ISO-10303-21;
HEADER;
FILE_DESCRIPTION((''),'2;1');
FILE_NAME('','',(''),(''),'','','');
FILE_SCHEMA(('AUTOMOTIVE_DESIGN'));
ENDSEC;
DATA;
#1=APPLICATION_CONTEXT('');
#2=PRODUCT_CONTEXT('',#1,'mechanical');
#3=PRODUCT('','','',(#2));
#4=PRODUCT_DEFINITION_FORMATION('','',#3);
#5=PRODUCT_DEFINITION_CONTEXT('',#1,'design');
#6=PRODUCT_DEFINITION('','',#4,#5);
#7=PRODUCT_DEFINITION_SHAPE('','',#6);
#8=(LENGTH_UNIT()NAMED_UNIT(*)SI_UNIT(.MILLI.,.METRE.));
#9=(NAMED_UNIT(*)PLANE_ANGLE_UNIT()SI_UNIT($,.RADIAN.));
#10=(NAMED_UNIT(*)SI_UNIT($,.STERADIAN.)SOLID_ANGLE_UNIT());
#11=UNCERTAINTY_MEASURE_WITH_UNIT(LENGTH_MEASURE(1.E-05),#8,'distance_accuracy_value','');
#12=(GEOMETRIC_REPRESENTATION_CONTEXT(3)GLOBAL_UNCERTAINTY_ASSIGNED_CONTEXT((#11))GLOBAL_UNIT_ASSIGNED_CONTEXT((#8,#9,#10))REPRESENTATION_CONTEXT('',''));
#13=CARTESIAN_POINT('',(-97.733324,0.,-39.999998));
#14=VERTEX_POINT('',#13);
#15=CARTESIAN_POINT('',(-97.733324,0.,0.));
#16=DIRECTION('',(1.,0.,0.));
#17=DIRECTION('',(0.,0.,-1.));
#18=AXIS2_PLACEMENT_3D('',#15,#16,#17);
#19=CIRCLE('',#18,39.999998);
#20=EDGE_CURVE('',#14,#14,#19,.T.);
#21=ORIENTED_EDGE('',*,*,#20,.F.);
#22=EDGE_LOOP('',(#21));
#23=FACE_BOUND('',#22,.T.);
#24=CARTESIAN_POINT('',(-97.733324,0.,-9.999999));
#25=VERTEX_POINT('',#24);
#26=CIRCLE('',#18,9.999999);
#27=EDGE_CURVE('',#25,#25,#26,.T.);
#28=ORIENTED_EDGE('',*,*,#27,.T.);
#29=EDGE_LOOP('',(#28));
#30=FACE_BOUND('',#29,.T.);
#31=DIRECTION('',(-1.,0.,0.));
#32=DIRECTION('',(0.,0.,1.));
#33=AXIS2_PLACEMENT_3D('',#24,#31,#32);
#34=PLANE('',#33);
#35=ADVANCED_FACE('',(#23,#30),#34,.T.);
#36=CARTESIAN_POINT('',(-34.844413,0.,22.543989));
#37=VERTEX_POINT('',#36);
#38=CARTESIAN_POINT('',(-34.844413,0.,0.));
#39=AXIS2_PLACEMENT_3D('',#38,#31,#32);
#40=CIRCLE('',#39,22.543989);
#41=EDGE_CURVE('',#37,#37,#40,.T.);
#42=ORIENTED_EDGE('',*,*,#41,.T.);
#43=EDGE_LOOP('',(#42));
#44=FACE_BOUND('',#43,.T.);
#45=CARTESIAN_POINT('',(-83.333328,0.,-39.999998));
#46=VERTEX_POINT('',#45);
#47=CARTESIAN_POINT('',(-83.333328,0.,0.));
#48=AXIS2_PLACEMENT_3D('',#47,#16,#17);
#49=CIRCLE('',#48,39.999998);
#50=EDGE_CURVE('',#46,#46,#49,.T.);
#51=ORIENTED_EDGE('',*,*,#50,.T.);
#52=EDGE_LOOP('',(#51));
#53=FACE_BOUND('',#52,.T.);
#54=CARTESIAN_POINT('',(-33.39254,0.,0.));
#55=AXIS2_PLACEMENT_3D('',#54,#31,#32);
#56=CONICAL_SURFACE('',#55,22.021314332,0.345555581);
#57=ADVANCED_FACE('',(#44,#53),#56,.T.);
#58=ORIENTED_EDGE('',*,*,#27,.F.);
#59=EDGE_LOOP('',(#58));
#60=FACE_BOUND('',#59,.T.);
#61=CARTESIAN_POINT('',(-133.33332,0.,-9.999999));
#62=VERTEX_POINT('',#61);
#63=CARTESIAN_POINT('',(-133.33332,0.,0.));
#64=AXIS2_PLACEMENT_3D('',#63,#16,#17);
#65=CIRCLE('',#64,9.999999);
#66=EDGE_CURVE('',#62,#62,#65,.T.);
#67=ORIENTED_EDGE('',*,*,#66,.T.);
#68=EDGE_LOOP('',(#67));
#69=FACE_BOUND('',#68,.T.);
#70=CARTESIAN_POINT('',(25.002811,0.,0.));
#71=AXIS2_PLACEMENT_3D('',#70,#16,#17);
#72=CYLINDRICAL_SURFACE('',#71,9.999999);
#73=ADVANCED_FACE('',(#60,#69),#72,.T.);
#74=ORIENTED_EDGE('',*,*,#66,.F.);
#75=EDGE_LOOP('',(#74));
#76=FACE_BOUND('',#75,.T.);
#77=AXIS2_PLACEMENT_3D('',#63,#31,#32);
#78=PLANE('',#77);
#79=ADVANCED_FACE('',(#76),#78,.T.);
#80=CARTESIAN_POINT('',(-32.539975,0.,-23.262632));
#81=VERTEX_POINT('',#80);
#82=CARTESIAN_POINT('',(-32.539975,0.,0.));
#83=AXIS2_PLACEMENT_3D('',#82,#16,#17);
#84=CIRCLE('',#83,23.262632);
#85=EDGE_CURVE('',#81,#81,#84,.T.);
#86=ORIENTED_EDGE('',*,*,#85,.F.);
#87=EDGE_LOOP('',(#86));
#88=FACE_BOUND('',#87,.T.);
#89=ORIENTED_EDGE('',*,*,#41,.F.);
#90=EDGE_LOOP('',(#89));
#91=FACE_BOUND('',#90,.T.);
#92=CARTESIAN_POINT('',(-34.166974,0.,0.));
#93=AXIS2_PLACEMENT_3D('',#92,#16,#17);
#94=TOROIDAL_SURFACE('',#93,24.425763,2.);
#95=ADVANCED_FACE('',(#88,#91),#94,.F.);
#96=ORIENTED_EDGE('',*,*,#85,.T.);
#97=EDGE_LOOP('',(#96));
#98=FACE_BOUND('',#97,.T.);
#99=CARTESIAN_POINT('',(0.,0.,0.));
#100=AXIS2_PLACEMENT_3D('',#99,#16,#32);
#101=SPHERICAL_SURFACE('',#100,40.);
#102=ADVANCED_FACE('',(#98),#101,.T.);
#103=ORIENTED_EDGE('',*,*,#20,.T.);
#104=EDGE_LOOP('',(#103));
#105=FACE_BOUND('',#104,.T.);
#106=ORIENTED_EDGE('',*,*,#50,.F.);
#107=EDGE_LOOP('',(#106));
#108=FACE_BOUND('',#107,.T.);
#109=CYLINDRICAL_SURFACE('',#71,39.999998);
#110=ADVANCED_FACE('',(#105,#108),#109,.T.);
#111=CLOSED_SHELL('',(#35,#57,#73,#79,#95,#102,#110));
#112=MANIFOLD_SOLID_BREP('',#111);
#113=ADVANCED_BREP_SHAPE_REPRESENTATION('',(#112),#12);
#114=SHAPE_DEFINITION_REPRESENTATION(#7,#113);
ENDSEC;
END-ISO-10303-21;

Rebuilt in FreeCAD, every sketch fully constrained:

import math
import FreeCAD as App
import Part
import Sketcher


def edges_at(feature, points):
    """Names of the edges that pass closest to the given points."""
    edges = feature.Shape.Edges
    near = lambda p: min(range(len(edges)), key=lambda i: edges[i].distToShape(Part.Vertex(*p))[0])
    return sorted({f"Edge{near(p) + 1}" for p in points})

doc = App.newDocument("Part")
body = doc.addObject("PartDesign::Body", "Body")

# Sketch on XZ plane
sketch1 = body.newObject("Sketcher::SketchObject", "Sketch")
sketch1.AttachmentSupport = (doc.getObject("XZ_Plane"), [""])
sketch1.MapMode = "FlatFace"
sketch1.addGeometry(Part.LineSegment(App.Vector(-33, -22, 0), App.Vector(-83, -40, 0)), False)
sketch1.addGeometry(Part.LineSegment(App.Vector(-83, -40, 0), App.Vector(-98, -40, 0)), False)
sketch1.addGeometry(Part.LineSegment(App.Vector(-98, -40, 0), App.Vector(-98, -10, 0)), False)
sketch1.addGeometry(Part.LineSegment(App.Vector(-98, -10, 0), App.Vector(-133, -10, 0)), False)
sketch1.addGeometry(Part.LineSegment(App.Vector(-133, -10, 0), App.Vector(-133, 0, 0)), False)
sketch1.addGeometry(Part.LineSegment(App.Vector(-133, 0, 0), App.Vector(40, 0, 0)), False)
sketch1.addGeometry(Part.ArcOfCircle(Part.Circle(App.Vector(0, 0, 0), App.Vector(0, 0, 1), 40), math.radians(-147), math.radians(0)), False)
sketch1.addConstraint(Sketcher.Constraint("Coincident", 0, 2, 1, 1))
sketch1.addConstraint(Sketcher.Constraint("Coincident", 1, 2, 2, 1))
sketch1.addConstraint(Sketcher.Constraint("Coincident", 2, 2, 3, 1))
sketch1.addConstraint(Sketcher.Constraint("Coincident", 3, 2, 4, 1))
sketch1.addConstraint(Sketcher.Constraint("Coincident", 4, 2, 5, 1))
sketch1.addConstraint(Sketcher.Constraint("Coincident", 5, 2, 6, 2))
sketch1.addConstraint(Sketcher.Constraint("Coincident", 6, 1, 0, 1))
sketch1.addConstraint(Sketcher.Constraint("Horizontal", 1))
sketch1.addConstraint(Sketcher.Constraint("Vertical", 2))
sketch1.addConstraint(Sketcher.Constraint("Horizontal", 3))
sketch1.addConstraint(Sketcher.Constraint("Vertical", 4))
sketch1.addConstraint(Sketcher.Constraint("Horizontal", 5))
sketch1.addConstraint(Sketcher.Constraint("Coincident", 6, 3, -1, 1))
sketch1.addConstraint(Sketcher.Constraint("PointOnObject", 4, 2, -1))
sketch1.addConstraint(Sketcher.Constraint("Radius", 6, 40.0))
sketch1.addConstraint(Sketcher.Constraint("DistanceY", 2, 1, 2, 2, 29.999999))
sketch1.addConstraint(Sketcher.Constraint("DistanceY", 4, 1, 4, 2, 9.999999))
sketch1.addConstraint(Sketcher.Constraint("DistanceX", 5, 1, 5, 2, 173.33332))
sketch1.addConstraint(Sketcher.Constraint("Distance", 0, 53.07839))
sketch1.addConstraint(Sketcher.Constraint("DistanceX", 1, 2, 1, 1, 14.399995))
sketch1.addConstraint(Sketcher.Constraint("DistanceX", 3, 2, 3, 1, 35.599996))
revolution = body.newObject("PartDesign::Revolution", "Revolution")
revolution.Profile = sketch1
revolution.ReferenceAxis = (sketch1, ["H_Axis"])
revolution.Angle = 360
doc.recompute()

fillet = body.newObject("PartDesign::Fillet", "Fillet")
fillet.Base = (revolution, edges_at(revolution, [(-33.393, 0, 22.021)]))
fillet.Radius = 2

doc.recompute()
